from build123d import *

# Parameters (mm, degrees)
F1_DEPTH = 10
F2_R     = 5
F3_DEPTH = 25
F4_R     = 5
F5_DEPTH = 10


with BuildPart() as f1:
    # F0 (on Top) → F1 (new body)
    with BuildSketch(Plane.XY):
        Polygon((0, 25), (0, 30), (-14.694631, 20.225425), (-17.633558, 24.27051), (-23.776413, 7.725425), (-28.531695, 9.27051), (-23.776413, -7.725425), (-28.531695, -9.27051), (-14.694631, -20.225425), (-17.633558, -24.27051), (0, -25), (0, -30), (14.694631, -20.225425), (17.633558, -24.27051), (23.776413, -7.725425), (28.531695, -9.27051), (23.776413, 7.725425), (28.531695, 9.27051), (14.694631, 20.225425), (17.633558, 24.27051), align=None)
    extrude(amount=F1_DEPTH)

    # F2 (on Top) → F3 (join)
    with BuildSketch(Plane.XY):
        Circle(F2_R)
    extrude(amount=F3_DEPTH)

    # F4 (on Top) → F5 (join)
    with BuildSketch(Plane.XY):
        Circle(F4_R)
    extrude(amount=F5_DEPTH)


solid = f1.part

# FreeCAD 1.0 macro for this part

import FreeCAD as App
import Part
import Sketcher

V = App.Vector
Q = App.Units.Quantity

doc = App.newDocument("Part")
body = doc.addObject("PartDesign::Body", "Body")

sketch1 = body.newObject("Sketcher::SketchObject", "Sketch")
sketch1.AttachmentSupport = (doc.getObject("XY_Plane"), [""])
sketch1.MapMode = "FlatFace"
sketch1.addGeometry(Part.LineSegment(V(0, 25, 0), V(0, 30, 0)), False)
sketch1.addGeometry(Part.LineSegment(V(0, 30, 0), V(-14.7, 20.2, 0)), False)
sketch1.addGeometry(Part.LineSegment(V(-14.7, 20.2, 0), V(-17.6, 24.3, 0)), False)
sketch1.addGeometry(Part.LineSegment(V(-17.6, 24.3, 0), V(-23.8, 7.7, 0)), False)
sketch1.addGeometry(Part.LineSegment(V(-23.8, 7.7, 0), V(-28.5, 9.3, 0)), False)
sketch1.addGeometry(Part.LineSegment(V(-28.5, 9.3, 0), V(-23.8, -7.7, 0)), False)
sketch1.addGeometry(Part.LineSegment(V(-23.8, -7.7, 0), V(-28.5, -9.3, 0)), False)
sketch1.addGeometry(Part.LineSegment(V(-28.5, -9.3, 0), V(-14.7, -20.2, 0)), False)
sketch1.addGeometry(Part.LineSegment(V(-14.7, -20.2, 0), V(-17.6, -24.3, 0)), False)
sketch1.addGeometry(Part.LineSegment(V(-17.6, -24.3, 0), V(0, -25, 0)), False)
sketch1.addGeometry(Part.LineSegment(V(0, -25, 0), V(0, -30, 0)), False)
sketch1.addGeometry(Part.LineSegment(V(0, -30, 0), V(14.7, -20.2, 0)), False)
sketch1.addGeometry(Part.LineSegment(V(14.7, -20.2, 0), V(17.6, -24.3, 0)), False)
sketch1.addGeometry(Part.LineSegment(V(17.6, -24.3, 0), V(23.8, -7.7, 0)), False)
sketch1.addGeometry(Part.LineSegment(V(23.8, -7.7, 0), V(28.5, -9.3, 0)), False)
sketch1.addGeometry(Part.LineSegment(V(28.5, -9.3, 0), V(23.8, 7.7, 0)), False)
sketch1.addGeometry(Part.LineSegment(V(23.8, 7.7, 0), V(28.5, 9.3, 0)), False)
sketch1.addGeometry(Part.LineSegment(V(28.5, 9.3, 0), V(14.7, 20.2, 0)), False)
sketch1.addGeometry(Part.LineSegment(V(14.7, 20.2, 0), V(17.6, 24.3, 0)), False)
sketch1.addGeometry(Part.LineSegment(V(17.6, 24.3, 0), V(0, 25, 0)), False)
sketch1.addConstraint(Sketcher.Constraint("Coincident", 0, 2, 1, 1))
sketch1.addConstraint(Sketcher.Constraint("Coincident", 1, 2, 2, 1))
sketch1.addConstraint(Sketcher.Constraint("Coincident", 2, 2, 3, 1))
sketch1.addConstraint(Sketcher.Constraint("Coincident", 3, 2, 4, 1))
sketch1.addConstraint(Sketcher.Constraint("Coincident", 4, 2, 5, 1))
sketch1.addConstraint(Sketcher.Constraint("Coincident", 5, 2, 6, 1))
sketch1.addConstraint(Sketcher.Constraint("Coincident", 6, 2, 7, 1))
sketch1.addConstraint(Sketcher.Constraint("Coincident", 7, 2, 8, 1))
sketch1.addConstraint(Sketcher.Constraint("Coincident", 8, 2, 9, 1))
sketch1.addConstraint(Sketcher.Constraint("Coincident", 9, 2, 10, 1))
sketch1.addConstraint(Sketcher.Constraint("Coincident", 10, 2, 11, 1))
sketch1.addConstraint(Sketcher.Constraint("Coincident", 11, 2, 12, 1))
sketch1.addConstraint(Sketcher.Constraint("Coincident", 12, 2, 13, 1))
sketch1.addConstraint(Sketcher.Constraint("Coincident", 13, 2, 14, 1))
sketch1.addConstraint(Sketcher.Constraint("Coincident", 14, 2, 15, 1))
sketch1.addConstraint(Sketcher.Constraint("Coincident", 15, 2, 16, 1))
sketch1.addConstraint(Sketcher.Constraint("Coincident", 16, 2, 17, 1))
sketch1.addConstraint(Sketcher.Constraint("Coincident", 17, 2, 18, 1))
sketch1.addConstraint(Sketcher.Constraint("Coincident", 18, 2, 19, 1))
sketch1.addConstraint(Sketcher.Constraint("Coincident", 19, 2, 0, 1))
sketch1.addConstraint(Sketcher.Constraint("Vertical", 0))
sketch1.addConstraint(Sketcher.Constraint("Vertical", 10))
sketch1.addConstraint(Sketcher.Constraint("Symmetric", 0, 2, 10, 2, -1, 1))
sketch1.addConstraint(Sketcher.Constraint("Symmetric", 1, 2, 11, 2, -1, 1))
sketch1.addConstraint(Sketcher.Constraint("Symmetric", 2, 2, 12, 2, -1, 1))
sketch1.addConstraint(Sketcher.Constraint("Symmetric", 3, 2, 13, 2, -1, 1))
sketch1.addConstraint(Sketcher.Constraint("Symmetric", 4, 2, 14, 2, -1, 1))
sketch1.addConstraint(Sketcher.Constraint("Symmetric", 5, 2, 15, 2, -1, 1))
sketch1.addConstraint(Sketcher.Constraint("Symmetric", 6, 2, 16, 2, -1, 1))
sketch1.addConstraint(Sketcher.Constraint("Symmetric", 7, 2, 17, 2, -1, 1))
sketch1.addConstraint(Sketcher.Constraint("Symmetric", 8, 2, 18, 2, -1, 1))
sketch1.addConstraint(Sketcher.Constraint("Symmetric", 7, 2, 11, 2, -2))
sketch1.addConstraint(Sketcher.Constraint("Symmetric", 8, 2, 12, 2, -2))
sketch1.addConstraint(Sketcher.Constraint("Symmetric", 5, 2, 13, 2, -2))
sketch1.addConstraint(Sketcher.Constraint("Symmetric", 6, 2, 14, 2, -2))
sketch1.addConstraint(Sketcher.Constraint("Symmetric", 9, 2, 19, 2, -1))
sketch1.addConstraint(Sketcher.Constraint("Equal", 1, 3))
sketch1.addConstraint(Sketcher.Constraint("Equal", 2, 4))
sketch1.addConstraint(Sketcher.Constraint("Equal", 3, 5))
sketch1.addConstraint(Sketcher.Constraint("Equal", 5, 7))
sketch1.addConstraint(Sketcher.Constraint("Equal", 7, 9))
sketch1.addConstraint(Sketcher.Constraint("DistanceY", 0, 1, 0, 2, Q("5 mm")))
sketch1.addConstraint(Sketcher.Constraint("Angle", 2, Q("126.000007 deg")))
sketch1.addConstraint(Sketcher.Constraint("Angle", 4, Q("161.999998 deg")))
sketch1.addConstraint(Sketcher.Constraint("Distance", 2, Q("5 mm")))
sketch1.addConstraint(Sketcher.Constraint("DistanceY", -1, 1, 0, 2, Q("30 mm")))
pad1 = body.newObject("PartDesign::Pad", "Pad")
pad1.Profile = sketch1
pad1.Length = 10

sketch2 = body.newObject("Sketcher::SketchObject", "Sketch001")
sketch2.AttachmentSupport = (doc.getObject("XY_Plane"), [""])
sketch2.MapMode = "FlatFace"
sketch2.addGeometry(Part.Circle(V(0, 0, 0), V(0, 0, 1), 5), False)
sketch2.addConstraint(Sketcher.Constraint("Coincident", 0, 3, -1, 1))
sketch2.addConstraint(Sketcher.Constraint("Diameter", 0, Q("10 mm")))
pad2 = body.newObject("PartDesign::Pad", "Pad001")
pad2.Profile = sketch2
pad2.Length = 25

sketch3 = body.newObject("Sketcher::SketchObject", "Sketch002")
sketch3.AttachmentSupport = (doc.getObject("XY_Plane"), [""])
sketch3.MapMode = "FlatFace"
sketch3.addGeometry(Part.Circle(V(0, 0, 0), V(0, 0, 1), 5), False)
sketch3.addConstraint(Sketcher.Constraint("Coincident", 0, 3, -1, 1))
sketch3.addConstraint(Sketcher.Constraint("Diameter", 0, Q("10 mm")))
pad3 = body.newObject("PartDesign::Pad", "Pad002")
pad3.Profile = sketch3
pad3.Length = 10

doc.recompute()
